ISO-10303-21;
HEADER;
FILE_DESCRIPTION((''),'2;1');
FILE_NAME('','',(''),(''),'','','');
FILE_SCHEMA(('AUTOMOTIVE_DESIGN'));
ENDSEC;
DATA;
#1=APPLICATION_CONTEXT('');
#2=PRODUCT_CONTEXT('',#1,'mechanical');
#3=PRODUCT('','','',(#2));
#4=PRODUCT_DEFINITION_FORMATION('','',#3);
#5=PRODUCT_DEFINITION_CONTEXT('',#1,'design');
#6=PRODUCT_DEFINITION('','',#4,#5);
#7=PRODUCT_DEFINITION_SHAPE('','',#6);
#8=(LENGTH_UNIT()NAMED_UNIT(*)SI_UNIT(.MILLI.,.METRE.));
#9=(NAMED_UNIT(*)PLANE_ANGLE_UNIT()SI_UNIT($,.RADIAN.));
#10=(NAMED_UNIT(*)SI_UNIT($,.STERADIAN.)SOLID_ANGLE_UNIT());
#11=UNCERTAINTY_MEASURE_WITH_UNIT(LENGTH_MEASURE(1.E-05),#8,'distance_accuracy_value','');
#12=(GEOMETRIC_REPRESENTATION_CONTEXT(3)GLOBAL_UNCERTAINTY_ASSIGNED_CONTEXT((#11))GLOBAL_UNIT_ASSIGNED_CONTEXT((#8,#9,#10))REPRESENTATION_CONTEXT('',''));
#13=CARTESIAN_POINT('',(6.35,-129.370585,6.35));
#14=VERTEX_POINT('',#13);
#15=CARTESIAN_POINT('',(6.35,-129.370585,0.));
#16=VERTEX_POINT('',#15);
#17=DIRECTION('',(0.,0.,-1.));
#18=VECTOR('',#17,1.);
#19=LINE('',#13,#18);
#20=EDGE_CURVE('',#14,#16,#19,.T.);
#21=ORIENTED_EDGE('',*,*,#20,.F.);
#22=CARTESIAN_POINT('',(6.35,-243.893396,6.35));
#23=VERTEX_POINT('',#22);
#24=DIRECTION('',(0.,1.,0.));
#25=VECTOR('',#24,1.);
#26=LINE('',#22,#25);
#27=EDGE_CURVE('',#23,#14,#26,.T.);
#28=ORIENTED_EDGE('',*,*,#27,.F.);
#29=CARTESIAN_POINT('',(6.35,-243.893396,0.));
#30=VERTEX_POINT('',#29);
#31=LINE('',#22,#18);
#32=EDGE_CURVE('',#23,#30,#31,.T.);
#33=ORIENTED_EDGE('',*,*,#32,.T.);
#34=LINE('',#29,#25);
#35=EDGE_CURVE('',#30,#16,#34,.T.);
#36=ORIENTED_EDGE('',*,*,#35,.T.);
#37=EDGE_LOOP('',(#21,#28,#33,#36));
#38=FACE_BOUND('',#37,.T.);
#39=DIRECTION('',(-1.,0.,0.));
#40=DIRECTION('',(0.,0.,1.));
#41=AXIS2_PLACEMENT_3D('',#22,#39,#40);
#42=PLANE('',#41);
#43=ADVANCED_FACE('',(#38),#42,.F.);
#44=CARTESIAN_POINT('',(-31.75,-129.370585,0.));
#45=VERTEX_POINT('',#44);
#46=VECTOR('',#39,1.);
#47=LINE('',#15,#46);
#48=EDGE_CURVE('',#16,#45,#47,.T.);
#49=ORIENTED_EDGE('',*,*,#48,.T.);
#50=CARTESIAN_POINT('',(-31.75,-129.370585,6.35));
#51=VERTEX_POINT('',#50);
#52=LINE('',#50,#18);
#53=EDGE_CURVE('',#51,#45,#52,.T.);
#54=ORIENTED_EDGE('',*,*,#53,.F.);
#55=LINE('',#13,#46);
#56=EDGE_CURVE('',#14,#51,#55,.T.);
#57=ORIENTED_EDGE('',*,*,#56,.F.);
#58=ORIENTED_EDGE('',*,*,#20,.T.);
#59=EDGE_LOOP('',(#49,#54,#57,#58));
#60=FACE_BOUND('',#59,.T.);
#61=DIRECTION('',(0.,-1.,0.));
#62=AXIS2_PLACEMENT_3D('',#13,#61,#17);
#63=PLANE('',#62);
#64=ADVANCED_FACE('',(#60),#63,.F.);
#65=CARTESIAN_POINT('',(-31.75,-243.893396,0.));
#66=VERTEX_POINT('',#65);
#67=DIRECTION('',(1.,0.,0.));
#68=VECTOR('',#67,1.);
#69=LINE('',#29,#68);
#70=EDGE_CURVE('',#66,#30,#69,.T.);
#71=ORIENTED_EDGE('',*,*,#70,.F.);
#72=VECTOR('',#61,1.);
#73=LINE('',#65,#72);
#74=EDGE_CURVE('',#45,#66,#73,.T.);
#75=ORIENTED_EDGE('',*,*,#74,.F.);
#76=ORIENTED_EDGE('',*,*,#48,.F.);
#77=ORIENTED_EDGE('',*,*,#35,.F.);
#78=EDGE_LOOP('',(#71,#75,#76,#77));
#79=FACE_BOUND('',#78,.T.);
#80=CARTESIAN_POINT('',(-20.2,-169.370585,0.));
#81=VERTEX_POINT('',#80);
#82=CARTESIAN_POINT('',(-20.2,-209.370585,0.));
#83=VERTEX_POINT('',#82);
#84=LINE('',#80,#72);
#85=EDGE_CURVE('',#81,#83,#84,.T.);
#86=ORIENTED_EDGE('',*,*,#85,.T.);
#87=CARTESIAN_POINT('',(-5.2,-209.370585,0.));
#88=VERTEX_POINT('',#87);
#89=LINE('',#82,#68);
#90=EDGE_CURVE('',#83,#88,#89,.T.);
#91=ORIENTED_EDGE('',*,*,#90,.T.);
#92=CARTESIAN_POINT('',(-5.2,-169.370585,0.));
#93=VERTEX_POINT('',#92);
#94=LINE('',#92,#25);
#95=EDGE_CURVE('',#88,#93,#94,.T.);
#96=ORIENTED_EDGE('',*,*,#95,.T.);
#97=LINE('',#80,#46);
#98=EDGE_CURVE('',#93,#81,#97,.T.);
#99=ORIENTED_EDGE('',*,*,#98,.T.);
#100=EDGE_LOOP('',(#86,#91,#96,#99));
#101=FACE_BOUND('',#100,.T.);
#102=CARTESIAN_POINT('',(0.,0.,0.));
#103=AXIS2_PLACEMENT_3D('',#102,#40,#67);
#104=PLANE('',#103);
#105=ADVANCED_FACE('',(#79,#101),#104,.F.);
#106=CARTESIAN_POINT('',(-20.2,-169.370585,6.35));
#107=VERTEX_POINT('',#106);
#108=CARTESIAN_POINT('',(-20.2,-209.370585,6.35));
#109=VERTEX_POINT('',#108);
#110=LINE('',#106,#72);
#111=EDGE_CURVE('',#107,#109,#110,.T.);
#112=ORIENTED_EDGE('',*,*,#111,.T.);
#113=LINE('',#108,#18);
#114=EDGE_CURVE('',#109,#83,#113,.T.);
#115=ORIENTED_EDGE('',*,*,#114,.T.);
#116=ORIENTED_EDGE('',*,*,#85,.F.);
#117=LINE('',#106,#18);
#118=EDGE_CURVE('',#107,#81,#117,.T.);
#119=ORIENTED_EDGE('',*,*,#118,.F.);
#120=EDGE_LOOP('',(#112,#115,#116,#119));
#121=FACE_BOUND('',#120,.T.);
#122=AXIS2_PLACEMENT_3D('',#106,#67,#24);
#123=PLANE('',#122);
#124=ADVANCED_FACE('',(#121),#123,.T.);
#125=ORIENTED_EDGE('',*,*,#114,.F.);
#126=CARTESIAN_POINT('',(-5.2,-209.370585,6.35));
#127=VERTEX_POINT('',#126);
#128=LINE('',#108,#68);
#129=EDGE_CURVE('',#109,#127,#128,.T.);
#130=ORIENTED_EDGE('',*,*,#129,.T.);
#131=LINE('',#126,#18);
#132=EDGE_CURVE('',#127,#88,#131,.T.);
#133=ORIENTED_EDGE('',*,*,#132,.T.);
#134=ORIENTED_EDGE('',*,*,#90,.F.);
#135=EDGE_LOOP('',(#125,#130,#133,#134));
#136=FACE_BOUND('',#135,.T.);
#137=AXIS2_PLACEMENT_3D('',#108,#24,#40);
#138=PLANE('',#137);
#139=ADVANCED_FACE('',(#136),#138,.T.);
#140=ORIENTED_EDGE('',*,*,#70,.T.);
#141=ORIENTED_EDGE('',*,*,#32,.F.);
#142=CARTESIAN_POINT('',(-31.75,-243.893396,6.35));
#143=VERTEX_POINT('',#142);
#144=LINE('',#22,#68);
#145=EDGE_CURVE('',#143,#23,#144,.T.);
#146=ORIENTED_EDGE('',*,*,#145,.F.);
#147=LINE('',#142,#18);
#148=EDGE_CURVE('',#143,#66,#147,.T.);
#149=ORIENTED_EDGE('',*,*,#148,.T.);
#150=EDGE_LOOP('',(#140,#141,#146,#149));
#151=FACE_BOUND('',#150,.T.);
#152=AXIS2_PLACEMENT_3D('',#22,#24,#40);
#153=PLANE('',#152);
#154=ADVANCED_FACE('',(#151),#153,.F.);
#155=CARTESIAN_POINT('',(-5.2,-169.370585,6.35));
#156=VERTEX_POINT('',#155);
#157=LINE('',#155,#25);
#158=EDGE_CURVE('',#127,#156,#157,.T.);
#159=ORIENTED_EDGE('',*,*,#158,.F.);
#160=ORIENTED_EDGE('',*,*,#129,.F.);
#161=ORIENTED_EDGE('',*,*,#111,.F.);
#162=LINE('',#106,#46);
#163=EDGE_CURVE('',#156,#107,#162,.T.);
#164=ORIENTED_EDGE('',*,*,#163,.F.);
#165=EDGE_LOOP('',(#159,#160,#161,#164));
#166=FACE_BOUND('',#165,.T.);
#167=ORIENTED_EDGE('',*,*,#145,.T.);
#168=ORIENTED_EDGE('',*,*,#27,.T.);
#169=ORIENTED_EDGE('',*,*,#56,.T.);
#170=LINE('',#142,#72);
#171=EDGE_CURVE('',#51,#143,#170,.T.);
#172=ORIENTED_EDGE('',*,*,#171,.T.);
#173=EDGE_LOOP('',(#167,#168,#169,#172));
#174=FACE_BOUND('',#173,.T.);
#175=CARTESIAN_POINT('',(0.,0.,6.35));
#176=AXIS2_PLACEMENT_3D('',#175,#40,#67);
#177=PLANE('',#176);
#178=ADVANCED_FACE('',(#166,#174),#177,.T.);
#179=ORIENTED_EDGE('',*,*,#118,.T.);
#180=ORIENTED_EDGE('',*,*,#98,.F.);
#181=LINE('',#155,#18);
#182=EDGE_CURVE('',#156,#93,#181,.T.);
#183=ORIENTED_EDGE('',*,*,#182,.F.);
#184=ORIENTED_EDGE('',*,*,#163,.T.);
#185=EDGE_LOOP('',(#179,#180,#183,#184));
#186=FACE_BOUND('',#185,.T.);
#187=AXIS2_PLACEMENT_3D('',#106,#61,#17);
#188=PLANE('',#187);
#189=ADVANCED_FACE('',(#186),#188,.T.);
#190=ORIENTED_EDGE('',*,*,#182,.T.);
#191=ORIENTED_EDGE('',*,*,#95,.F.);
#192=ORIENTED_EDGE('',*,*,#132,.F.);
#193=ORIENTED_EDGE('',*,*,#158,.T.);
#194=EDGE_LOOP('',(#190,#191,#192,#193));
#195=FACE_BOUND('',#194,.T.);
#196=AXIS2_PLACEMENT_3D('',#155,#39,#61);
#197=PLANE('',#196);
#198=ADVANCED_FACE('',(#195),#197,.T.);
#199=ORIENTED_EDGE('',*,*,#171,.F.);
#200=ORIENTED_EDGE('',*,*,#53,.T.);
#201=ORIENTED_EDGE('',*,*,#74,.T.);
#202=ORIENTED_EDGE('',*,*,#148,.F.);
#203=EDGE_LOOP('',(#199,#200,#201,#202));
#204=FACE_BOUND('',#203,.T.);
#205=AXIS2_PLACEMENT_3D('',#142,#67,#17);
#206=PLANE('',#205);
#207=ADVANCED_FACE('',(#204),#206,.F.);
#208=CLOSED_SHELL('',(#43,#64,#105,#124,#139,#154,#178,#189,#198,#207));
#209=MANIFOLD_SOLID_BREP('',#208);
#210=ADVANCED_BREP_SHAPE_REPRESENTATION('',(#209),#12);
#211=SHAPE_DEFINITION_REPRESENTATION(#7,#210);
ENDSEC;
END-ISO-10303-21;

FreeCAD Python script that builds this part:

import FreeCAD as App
import Part
import Sketcher
from FreeCAD import Vector

doc = App.newDocument("Part")
body = doc.addObject("PartDesign::Body", "Body")

# Sketch on XY plane
sketch1 = body.newObject("Sketcher::SketchObject", "Sketch")
sketch1.AttachmentSupport = (doc.getObject("XY_Plane"), [""])
sketch1.MapMode = "FlatFace"
sketch1.addGeometry(Part.LineSegment(Vector(-32, -129, 0), Vector(-32, -244, 0)), False)
sketch1.addGeometry(Part.LineSegment(Vector(-32, -244, 0), Vector(6, -244, 0)), False)
sketch1.addGeometry(Part.LineSegment(Vector(6, -244, 0), Vector(6, -129, 0)), False)
sketch1.addGeometry(Part.LineSegment(Vector(6, -129, 0), Vector(-32, -129, 0)), False)
sketch1.addGeometry(Part.LineSegment(Vector(-5, -209, 0), Vector(-20, -209, 0)), False)
sketch1.addGeometry(Part.LineSegment(Vector(-20, -209, 0), Vector(-20, -169, 0)), False)
sketch1.addGeometry(Part.LineSegment(Vector(-20, -169, 0), Vector(-5, -169, 0)), False)
sketch1.addGeometry(Part.LineSegment(Vector(-5, -169, 0), Vector(-5, -209, 0)), False)
sketch1.addConstraint(Sketcher.Constraint("Coincident", 0, 2, 1, 1))
sketch1.addConstraint(Sketcher.Constraint("Coincident", 1, 2, 2, 1))
sketch1.addConstraint(Sketcher.Constraint("Coincident", 2, 2, 3, 1))
sketch1.addConstraint(Sketcher.Constraint("Coincident", 3, 2, 0, 1))
sketch1.addConstraint(Sketcher.Constraint("Coincident", 4, 2, 5, 1))
sketch1.addConstraint(Sketcher.Constraint("Coincident", 5, 2, 6, 1))
sketch1.addConstraint(Sketcher.Constraint("Coincident", 6, 2, 7, 1))
sketch1.addConstraint(Sketcher.Constraint("Coincident", 7, 2, 4, 1))
sketch1.addConstraint(Sketcher.Constraint("Vertical", 0))
sketch1.addConstraint(Sketcher.Constraint("Horizontal", 1))
sketch1.addConstraint(Sketcher.Constraint("Vertical", 2))
sketch1.addConstraint(Sketcher.Constraint("Horizontal", 3))
sketch1.addConstraint(Sketcher.Constraint("Horizontal", 4))
sketch1.addConstraint(Sketcher.Constraint("Vertical", 5))
sketch1.addConstraint(Sketcher.Constraint("Horizontal", 6))
sketch1.addConstraint(Sketcher.Constraint("Vertical", 7))
sketch1.addConstraint(Sketcher.Constraint("DistanceX", 4, 2, 4, 1, 15.0))
sketch1.addConstraint(Sketcher.Constraint("DistanceY", 5, 1, 5, 2, 40.0))
sketch1.addConstraint(Sketcher.Constraint("DistanceX", 1, 1, 1, 2, 38.1))
sketch1.addConstraint(Sketcher.Constraint("DistanceY", 4, 2, 3, 2, 80.0))
sketch1.addConstraint(Sketcher.Constraint("DistanceX", 4, 2, -1, 1, 20.2))
sketch1.addConstraint(Sketcher.Constraint("DistanceX", 0, 2, -1, 1, 31.75))
sketch1.addConstraint(Sketcher.Constraint("DistanceY", 0, 2, 0, 1, 114.522811))
sketch1.addConstraint(Sketcher.Constraint("DistanceY", 0, 2, -1, 1, 243.893396))
pad1 = body.newObject("PartDesign::Pad", "Pad")
pad1.Profile = sketch1
pad1.Length = 6.35

doc.recompute()
